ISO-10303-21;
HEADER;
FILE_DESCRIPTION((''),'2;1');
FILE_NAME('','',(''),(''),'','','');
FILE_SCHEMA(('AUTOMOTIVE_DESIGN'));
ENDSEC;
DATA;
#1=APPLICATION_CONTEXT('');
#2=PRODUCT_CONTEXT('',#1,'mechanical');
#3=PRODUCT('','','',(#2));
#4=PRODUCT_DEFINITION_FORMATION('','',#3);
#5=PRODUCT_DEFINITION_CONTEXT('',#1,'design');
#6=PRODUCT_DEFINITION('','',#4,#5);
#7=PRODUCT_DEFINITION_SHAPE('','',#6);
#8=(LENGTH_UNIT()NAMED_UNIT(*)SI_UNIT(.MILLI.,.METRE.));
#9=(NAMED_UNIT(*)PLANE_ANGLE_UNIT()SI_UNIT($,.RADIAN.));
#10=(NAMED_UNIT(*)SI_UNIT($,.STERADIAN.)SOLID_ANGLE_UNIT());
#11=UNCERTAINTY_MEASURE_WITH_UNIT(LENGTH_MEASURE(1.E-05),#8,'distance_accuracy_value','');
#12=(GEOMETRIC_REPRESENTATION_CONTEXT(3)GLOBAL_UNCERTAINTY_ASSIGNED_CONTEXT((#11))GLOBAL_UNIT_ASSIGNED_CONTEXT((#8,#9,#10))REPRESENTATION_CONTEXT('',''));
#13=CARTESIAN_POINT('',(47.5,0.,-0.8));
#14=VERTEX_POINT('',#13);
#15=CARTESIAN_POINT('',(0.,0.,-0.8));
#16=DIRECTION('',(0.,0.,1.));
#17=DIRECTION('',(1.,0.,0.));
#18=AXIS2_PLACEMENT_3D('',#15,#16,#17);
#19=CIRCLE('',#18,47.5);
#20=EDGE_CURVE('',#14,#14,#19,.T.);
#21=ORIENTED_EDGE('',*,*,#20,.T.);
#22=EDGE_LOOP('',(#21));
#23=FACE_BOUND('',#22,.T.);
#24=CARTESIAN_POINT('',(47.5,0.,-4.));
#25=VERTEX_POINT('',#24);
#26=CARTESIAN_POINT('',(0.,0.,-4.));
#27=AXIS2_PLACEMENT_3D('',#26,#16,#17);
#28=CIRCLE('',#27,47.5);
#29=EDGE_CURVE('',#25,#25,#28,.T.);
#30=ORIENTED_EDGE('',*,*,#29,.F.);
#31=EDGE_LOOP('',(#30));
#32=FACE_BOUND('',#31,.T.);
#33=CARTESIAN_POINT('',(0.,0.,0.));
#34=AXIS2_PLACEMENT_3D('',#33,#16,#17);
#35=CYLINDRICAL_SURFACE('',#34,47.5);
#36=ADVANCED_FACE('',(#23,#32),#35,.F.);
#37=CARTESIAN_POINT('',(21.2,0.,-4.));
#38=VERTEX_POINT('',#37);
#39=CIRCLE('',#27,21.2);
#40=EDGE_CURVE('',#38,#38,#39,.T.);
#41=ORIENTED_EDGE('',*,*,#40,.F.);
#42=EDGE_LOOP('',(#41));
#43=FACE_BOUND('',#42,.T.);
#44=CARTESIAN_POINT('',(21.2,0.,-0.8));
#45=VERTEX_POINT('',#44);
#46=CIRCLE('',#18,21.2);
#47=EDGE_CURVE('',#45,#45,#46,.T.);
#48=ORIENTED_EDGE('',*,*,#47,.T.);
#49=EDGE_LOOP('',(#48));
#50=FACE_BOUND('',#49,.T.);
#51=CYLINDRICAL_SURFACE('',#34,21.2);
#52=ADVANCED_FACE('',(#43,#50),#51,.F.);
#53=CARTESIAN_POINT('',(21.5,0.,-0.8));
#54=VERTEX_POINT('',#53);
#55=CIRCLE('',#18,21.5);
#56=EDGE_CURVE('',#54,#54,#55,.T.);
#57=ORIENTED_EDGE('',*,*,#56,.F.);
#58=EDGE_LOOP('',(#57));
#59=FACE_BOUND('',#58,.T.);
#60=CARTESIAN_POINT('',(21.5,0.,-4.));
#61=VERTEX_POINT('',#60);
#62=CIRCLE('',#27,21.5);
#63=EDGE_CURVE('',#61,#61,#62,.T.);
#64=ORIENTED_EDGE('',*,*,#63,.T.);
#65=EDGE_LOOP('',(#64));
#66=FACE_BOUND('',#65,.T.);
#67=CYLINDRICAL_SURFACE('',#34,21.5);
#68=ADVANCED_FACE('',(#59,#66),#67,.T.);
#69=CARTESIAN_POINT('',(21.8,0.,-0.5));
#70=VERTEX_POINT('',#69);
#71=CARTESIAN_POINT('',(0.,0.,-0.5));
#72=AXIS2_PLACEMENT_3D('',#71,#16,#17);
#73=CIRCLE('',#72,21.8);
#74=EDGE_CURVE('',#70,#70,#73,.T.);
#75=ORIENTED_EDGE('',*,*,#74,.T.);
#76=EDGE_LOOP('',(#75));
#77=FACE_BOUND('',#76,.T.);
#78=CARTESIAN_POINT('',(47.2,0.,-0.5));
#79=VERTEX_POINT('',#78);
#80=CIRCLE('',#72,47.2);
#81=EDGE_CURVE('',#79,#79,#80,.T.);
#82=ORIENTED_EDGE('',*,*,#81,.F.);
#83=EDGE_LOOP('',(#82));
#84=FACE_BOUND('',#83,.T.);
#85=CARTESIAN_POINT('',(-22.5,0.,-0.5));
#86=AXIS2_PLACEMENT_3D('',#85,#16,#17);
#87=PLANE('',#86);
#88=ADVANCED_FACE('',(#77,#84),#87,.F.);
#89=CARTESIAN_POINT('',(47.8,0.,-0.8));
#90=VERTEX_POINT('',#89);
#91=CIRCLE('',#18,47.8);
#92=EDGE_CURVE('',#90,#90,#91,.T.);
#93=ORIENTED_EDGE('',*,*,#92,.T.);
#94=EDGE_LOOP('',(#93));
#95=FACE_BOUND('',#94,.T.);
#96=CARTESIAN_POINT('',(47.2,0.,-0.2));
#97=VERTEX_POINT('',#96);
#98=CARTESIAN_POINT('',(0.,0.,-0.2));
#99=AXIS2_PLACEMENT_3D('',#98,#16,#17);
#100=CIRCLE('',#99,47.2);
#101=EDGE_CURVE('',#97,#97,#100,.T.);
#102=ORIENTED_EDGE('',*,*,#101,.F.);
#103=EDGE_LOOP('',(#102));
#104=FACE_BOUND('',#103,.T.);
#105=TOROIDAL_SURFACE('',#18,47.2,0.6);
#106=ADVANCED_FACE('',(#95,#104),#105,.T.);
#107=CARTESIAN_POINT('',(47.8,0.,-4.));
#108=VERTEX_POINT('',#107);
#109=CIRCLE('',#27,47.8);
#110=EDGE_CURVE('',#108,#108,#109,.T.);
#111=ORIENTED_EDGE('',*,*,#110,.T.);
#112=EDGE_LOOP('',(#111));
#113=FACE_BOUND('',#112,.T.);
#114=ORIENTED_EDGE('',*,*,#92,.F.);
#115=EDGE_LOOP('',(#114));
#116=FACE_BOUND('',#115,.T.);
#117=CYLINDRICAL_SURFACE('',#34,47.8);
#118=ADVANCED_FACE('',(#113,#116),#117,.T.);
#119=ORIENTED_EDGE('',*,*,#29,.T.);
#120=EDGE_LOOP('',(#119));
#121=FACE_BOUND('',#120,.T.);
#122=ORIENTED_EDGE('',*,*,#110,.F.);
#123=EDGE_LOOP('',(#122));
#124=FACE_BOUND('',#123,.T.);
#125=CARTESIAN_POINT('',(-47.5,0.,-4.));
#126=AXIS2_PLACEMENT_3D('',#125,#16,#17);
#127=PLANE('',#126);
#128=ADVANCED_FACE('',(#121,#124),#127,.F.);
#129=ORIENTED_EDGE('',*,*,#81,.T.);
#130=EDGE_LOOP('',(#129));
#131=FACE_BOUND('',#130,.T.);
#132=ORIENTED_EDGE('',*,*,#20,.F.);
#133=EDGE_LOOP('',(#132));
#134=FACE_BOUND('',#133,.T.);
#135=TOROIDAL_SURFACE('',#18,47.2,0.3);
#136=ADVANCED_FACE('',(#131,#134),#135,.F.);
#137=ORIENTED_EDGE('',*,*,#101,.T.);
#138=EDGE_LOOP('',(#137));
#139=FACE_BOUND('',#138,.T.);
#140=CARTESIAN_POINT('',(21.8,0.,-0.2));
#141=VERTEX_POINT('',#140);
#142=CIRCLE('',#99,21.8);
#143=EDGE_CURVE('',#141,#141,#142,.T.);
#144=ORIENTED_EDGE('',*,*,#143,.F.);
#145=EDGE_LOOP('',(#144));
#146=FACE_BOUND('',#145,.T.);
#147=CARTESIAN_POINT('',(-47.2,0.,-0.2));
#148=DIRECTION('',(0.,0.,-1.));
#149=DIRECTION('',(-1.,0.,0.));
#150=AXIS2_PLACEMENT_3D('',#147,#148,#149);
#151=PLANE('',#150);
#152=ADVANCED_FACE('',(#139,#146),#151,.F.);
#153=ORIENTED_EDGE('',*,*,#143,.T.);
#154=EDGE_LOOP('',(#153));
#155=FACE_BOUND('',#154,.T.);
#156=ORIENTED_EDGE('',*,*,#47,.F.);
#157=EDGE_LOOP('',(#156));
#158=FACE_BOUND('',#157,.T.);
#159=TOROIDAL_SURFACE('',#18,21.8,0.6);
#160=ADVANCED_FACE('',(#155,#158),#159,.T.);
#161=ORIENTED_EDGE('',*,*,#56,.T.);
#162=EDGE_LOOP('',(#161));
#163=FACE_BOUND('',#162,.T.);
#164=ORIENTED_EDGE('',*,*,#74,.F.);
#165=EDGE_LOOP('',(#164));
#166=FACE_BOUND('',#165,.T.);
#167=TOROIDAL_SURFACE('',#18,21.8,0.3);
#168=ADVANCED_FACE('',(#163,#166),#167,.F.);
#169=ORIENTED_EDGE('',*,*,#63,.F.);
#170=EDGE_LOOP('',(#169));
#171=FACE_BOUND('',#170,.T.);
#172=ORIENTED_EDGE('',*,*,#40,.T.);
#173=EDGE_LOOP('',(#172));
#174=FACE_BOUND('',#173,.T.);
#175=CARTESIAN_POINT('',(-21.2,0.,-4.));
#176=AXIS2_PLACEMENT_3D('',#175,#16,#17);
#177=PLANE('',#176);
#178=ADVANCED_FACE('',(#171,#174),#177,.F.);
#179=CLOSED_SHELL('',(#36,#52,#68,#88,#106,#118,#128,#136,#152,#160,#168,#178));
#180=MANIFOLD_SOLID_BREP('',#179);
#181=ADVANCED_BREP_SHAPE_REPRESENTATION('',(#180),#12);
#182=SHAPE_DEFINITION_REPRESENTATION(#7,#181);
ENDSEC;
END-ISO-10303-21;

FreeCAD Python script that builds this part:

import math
import FreeCAD as App
import Part
import Sketcher

V = App.Vector
Q = App.Units.Quantity

doc = App.newDocument("Part")
body = doc.addObject("PartDesign::Body", "Body")

sketch1 = doc.addObject("Sketcher::SketchObject", "Sketch")
body.addObject(sketch1)
sketch1.AttachmentSupport = (doc.XZ_Plane, [""])
sketch1.MapMode = "FlatFace"
sketch1.addGeometry(Part.ArcOfCircle(Part.Circle(V(-47.2, -0.8, 0), V(0, 0, 1), 0.3), math.radians(90), math.radians(180)), False)
sketch1.addGeometry(Part.LineSegment(V(-47.5, -0.8, 0), V(-47.5, -4, 0)), False)
sketch1.addGeometry(Part.LineSegment(V(-47.5, -4, 0), V(-47.8, -4, 0)), False)
sketch1.addGeometry(Part.LineSegment(V(-47.8, -4, 0), V(-47.8, -0.8, 0)), False)
sketch1.addGeometry(Part.ArcOfCircle(Part.Circle(V(-47.2, -0.8, 0), V(0, 0, 1), 0.6), math.radians(90), math.radians(180)), False)
sketch1.addGeometry(Part.LineSegment(V(-47.2, -0.2, 0), V(-21.8, -0.2, 0)), False)
sketch1.addGeometry(Part.ArcOfCircle(Part.Circle(V(-21.8, -0.8, 0), V(0, 0, 1), 0.6), math.radians(0), math.radians(90)), False)
sketch1.addGeometry(Part.LineSegment(V(-21.2, -0.8, 0), V(-21.2, -4, 0)), False)
sketch1.addGeometry(Part.LineSegment(V(-21.2, -4, 0), V(-21.5, -4, 0)), False)
sketch1.addGeometry(Part.LineSegment(V(-21.5, -4, 0), V(-21.5, -0.8, 0)), False)
sketch1.addGeometry(Part.ArcOfCircle(Part.Circle(V(-21.8, -0.8, 0), V(0, 0, 1), 0.3), math.radians(0), math.radians(90)), False)
sketch1.addGeometry(Part.LineSegment(V(-21.8, -0.5, 0), V(-47.2, -0.5, 0)), False)
sketch1.addConstraint(Sketcher.Constraint("Tangent", 0, 2, 1, 1))
sketch1.addConstraint(Sketcher.Constraint("Coincident", 1, 2, 2, 1))
sketch1.addConstraint(Sketcher.Constraint("Coincident", 2, 2, 3, 1))
sketch1.addConstraint(Sketcher.Constraint("Tangent", 3, 2, 4, 2))
sketch1.addConstraint(Sketcher.Constraint("Tangent", 4, 1, 5, 1))
sketch1.addConstraint(Sketcher.Constraint("Tangent", 5, 2, 6, 2))
sketch1.addConstraint(Sketcher.Constraint("Tangent", 6, 1, 7, 1))
sketch1.addConstraint(Sketcher.Constraint("Coincident", 7, 2, 8, 1))
sketch1.addConstraint(Sketcher.Constraint("Coincident", 8, 2, 9, 1))
sketch1.addConstraint(Sketcher.Constraint("Tangent", 9, 2, 10, 1))
sketch1.addConstraint(Sketcher.Constraint("Tangent", 10, 2, 11, 1))
sketch1.addConstraint(Sketcher.Constraint("Tangent", 11, 2, 0, 1))
sketch1.addConstraint(Sketcher.Constraint("Vertical", 1))
sketch1.addConstraint(Sketcher.Constraint("Horizontal", 2))
sketch1.addConstraint(Sketcher.Constraint("Vertical", 3))
sketch1.addConstraint(Sketcher.Constraint("Horizontal", 5))
sketch1.addConstraint(Sketcher.Constraint("Vertical", 7))
sketch1.addConstraint(Sketcher.Constraint("Horizontal", 8))
sketch1.addConstraint(Sketcher.Constraint("Vertical", 9))
sketch1.addConstraint(Sketcher.Constraint("Horizontal", 11))
sketch1.addConstraint(Sketcher.Constraint("Coincident", 4, 3, 0, 3))
sketch1.addConstraint(Sketcher.Constraint("Coincident", 10, 3, 6, 3))
sketch1.addConstraint(Sketcher.Constraint("Equal", 4, 6))
sketch1.addConstraint(Sketcher.Constraint("Horizontal", 2, 2, 7, 2))
sketch1.addConstraint(Sketcher.Constraint("Radius", 0, Q("0.3 mm")))
sketch1.addConstraint(Sketcher.Constraint("Radius", 4, Q("0.6 mm")))
sketch1.addConstraint(Sketcher.Constraint("DistanceX", 5, 1, 5, 2, Q("25.4 mm")))
sketch1.addConstraint(Sketcher.Constraint("DistanceY", 1, 2, 1, 1, Q("3.2 mm")))
sketch1.addConstraint(Sketcher.Constraint("DistanceY", 1, 2, -1, 1, Q("4 mm")))
sketch1.addConstraint(Sketcher.Constraint("DistanceX", 0, 3, -1, 1, Q("47.2 mm")))
revolution = doc.addObject("PartDesign::Revolution", "Revolution")
body.addObject(revolution)
revolution.Profile = sketch1
revolution.ReferenceAxis = (sketch1, ["V_Axis"])
revolution.Angle = 360

doc.recompute()
